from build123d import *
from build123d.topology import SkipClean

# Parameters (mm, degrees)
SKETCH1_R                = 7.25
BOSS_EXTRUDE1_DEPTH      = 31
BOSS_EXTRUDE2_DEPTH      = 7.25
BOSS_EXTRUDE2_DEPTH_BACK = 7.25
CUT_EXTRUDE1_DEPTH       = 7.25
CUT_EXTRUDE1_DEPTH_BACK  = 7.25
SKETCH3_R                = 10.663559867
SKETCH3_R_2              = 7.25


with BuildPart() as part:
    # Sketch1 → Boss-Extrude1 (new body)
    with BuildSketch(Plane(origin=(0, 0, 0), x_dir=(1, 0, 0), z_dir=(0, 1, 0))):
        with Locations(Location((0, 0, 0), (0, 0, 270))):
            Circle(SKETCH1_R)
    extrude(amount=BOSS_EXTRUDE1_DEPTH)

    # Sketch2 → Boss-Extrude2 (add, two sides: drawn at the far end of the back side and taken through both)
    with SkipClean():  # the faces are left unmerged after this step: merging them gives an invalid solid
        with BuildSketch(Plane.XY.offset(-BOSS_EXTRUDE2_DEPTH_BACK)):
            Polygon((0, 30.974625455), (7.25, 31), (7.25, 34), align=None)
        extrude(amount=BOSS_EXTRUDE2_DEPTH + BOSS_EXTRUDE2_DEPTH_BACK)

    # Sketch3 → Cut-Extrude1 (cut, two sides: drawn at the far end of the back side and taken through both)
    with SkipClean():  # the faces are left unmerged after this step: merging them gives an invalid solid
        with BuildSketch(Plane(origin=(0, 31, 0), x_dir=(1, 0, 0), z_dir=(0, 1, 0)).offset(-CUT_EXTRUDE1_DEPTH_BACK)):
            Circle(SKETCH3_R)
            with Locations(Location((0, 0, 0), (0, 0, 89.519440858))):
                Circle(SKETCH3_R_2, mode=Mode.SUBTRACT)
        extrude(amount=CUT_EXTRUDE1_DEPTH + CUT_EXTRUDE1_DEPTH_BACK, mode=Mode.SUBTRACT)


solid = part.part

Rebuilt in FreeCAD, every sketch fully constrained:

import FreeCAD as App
import Part
import Sketcher
from FreeCAD import Vector

doc = App.newDocument("Part")
body = doc.addObject("PartDesign::Body", "Body")

sketch1 = body.newObject("Sketcher::SketchObject", "Sketch")
sketch1.AttachmentSupport = (doc.getObject("XZ_Plane"), [""])
sketch1.MapMode = "FlatFace"
sketch1.addGeometry(Part.Circle(Vector(0, 0, 0), Vector(0, 0, 1), 7), False)
sketch1.addConstraint(Sketcher.Constraint("Coincident", 0, 3, -1, 1))
sketch1.addConstraint(Sketcher.Constraint("Diameter", 0, 14.5))
pad1 = body.newObject("PartDesign::Pad", "Pad")
pad1.Profile = sketch1
pad1.Length = 31
pad1.Reversed = True

sketch2 = body.newObject("Sketcher::SketchObject", "Sketch001")
sketch2.AttachmentSupport = (doc.getObject("XY_Plane"), [""])
sketch2.MapMode = "FlatFace"
sketch2.addGeometry(Part.LineSegment(Vector(0, 31, 0), Vector(7.2, 31, 0)), False)
sketch2.addGeometry(Part.LineSegment(Vector(7.2, 31, 0), Vector(7.2, 34, 0)), False)
sketch2.addGeometry(Part.LineSegment(Vector(7.2, 34, 0), Vector(0, 31, 0)), False)
sketch2.addConstraint(Sketcher.Constraint("Coincident", 0, 2, 1, 1))
sketch2.addConstraint(Sketcher.Constraint("Coincident", 1, 2, 2, 1))
sketch2.addConstraint(Sketcher.Constraint("Coincident", 2, 2, 0, 1))
sketch2.addConstraint(Sketcher.Constraint("Vertical", 1))
sketch2.addConstraint(Sketcher.Constraint("PointOnObject", 2, 2, -2))
sketch2.addConstraint(Sketcher.Constraint("DistanceY", 1, 1, 1, 2, 3.0))
sketch2.addConstraint(Sketcher.Constraint("DistanceY", -1, 1, 0, 2, 31.0))
sketch2.addConstraint(Sketcher.Constraint("DistanceX", -1, 1, 0, 2, 7.25))
sketch2.addConstraint(Sketcher.Constraint("Distance", 2, 7.855914))
pad2 = body.newObject("PartDesign::Pad", "Pad001")
pad2.Profile = sketch2
pad2.Type = "TwoLengths"
pad2.Length = 7.25
pad2.Length2 = 7.25

sketch3 = body.newObject("Sketcher::SketchObject", "Sketch002")
sketch3.AttachmentSupport = (doc.getObject("XZ_Plane"), [""])
sketch3.MapMode = "FlatFace"
sketch3.AttachmentOffset = App.Placement(Vector(0, 0, -31), App.Rotation())
sketch3.addGeometry(Part.Circle(Vector(0, 0, 0), Vector(0, 0, 1), 11), False)
sketch3.addGeometry(Part.Circle(Vector(0, 0, 0), Vector(0, 0, 1), 7), False)
sketch3.addConstraint(Sketcher.Constraint("Coincident", 0, 3, -1, 1))
sketch3.addConstraint(Sketcher.Constraint("Coincident", 1, 3, -1, 1))
sketch3.addConstraint(Sketcher.Constraint("Diameter", 1, 14.5))
sketch3.addConstraint(Sketcher.Constraint("Diameter", 0, 21.32712))
pocket1 = body.newObject("PartDesign::Pocket", "Pocket")
pocket1.Profile = sketch3
pocket1.Type = "ThroughAll"
pocket1.Midplane = True

doc.recompute()
